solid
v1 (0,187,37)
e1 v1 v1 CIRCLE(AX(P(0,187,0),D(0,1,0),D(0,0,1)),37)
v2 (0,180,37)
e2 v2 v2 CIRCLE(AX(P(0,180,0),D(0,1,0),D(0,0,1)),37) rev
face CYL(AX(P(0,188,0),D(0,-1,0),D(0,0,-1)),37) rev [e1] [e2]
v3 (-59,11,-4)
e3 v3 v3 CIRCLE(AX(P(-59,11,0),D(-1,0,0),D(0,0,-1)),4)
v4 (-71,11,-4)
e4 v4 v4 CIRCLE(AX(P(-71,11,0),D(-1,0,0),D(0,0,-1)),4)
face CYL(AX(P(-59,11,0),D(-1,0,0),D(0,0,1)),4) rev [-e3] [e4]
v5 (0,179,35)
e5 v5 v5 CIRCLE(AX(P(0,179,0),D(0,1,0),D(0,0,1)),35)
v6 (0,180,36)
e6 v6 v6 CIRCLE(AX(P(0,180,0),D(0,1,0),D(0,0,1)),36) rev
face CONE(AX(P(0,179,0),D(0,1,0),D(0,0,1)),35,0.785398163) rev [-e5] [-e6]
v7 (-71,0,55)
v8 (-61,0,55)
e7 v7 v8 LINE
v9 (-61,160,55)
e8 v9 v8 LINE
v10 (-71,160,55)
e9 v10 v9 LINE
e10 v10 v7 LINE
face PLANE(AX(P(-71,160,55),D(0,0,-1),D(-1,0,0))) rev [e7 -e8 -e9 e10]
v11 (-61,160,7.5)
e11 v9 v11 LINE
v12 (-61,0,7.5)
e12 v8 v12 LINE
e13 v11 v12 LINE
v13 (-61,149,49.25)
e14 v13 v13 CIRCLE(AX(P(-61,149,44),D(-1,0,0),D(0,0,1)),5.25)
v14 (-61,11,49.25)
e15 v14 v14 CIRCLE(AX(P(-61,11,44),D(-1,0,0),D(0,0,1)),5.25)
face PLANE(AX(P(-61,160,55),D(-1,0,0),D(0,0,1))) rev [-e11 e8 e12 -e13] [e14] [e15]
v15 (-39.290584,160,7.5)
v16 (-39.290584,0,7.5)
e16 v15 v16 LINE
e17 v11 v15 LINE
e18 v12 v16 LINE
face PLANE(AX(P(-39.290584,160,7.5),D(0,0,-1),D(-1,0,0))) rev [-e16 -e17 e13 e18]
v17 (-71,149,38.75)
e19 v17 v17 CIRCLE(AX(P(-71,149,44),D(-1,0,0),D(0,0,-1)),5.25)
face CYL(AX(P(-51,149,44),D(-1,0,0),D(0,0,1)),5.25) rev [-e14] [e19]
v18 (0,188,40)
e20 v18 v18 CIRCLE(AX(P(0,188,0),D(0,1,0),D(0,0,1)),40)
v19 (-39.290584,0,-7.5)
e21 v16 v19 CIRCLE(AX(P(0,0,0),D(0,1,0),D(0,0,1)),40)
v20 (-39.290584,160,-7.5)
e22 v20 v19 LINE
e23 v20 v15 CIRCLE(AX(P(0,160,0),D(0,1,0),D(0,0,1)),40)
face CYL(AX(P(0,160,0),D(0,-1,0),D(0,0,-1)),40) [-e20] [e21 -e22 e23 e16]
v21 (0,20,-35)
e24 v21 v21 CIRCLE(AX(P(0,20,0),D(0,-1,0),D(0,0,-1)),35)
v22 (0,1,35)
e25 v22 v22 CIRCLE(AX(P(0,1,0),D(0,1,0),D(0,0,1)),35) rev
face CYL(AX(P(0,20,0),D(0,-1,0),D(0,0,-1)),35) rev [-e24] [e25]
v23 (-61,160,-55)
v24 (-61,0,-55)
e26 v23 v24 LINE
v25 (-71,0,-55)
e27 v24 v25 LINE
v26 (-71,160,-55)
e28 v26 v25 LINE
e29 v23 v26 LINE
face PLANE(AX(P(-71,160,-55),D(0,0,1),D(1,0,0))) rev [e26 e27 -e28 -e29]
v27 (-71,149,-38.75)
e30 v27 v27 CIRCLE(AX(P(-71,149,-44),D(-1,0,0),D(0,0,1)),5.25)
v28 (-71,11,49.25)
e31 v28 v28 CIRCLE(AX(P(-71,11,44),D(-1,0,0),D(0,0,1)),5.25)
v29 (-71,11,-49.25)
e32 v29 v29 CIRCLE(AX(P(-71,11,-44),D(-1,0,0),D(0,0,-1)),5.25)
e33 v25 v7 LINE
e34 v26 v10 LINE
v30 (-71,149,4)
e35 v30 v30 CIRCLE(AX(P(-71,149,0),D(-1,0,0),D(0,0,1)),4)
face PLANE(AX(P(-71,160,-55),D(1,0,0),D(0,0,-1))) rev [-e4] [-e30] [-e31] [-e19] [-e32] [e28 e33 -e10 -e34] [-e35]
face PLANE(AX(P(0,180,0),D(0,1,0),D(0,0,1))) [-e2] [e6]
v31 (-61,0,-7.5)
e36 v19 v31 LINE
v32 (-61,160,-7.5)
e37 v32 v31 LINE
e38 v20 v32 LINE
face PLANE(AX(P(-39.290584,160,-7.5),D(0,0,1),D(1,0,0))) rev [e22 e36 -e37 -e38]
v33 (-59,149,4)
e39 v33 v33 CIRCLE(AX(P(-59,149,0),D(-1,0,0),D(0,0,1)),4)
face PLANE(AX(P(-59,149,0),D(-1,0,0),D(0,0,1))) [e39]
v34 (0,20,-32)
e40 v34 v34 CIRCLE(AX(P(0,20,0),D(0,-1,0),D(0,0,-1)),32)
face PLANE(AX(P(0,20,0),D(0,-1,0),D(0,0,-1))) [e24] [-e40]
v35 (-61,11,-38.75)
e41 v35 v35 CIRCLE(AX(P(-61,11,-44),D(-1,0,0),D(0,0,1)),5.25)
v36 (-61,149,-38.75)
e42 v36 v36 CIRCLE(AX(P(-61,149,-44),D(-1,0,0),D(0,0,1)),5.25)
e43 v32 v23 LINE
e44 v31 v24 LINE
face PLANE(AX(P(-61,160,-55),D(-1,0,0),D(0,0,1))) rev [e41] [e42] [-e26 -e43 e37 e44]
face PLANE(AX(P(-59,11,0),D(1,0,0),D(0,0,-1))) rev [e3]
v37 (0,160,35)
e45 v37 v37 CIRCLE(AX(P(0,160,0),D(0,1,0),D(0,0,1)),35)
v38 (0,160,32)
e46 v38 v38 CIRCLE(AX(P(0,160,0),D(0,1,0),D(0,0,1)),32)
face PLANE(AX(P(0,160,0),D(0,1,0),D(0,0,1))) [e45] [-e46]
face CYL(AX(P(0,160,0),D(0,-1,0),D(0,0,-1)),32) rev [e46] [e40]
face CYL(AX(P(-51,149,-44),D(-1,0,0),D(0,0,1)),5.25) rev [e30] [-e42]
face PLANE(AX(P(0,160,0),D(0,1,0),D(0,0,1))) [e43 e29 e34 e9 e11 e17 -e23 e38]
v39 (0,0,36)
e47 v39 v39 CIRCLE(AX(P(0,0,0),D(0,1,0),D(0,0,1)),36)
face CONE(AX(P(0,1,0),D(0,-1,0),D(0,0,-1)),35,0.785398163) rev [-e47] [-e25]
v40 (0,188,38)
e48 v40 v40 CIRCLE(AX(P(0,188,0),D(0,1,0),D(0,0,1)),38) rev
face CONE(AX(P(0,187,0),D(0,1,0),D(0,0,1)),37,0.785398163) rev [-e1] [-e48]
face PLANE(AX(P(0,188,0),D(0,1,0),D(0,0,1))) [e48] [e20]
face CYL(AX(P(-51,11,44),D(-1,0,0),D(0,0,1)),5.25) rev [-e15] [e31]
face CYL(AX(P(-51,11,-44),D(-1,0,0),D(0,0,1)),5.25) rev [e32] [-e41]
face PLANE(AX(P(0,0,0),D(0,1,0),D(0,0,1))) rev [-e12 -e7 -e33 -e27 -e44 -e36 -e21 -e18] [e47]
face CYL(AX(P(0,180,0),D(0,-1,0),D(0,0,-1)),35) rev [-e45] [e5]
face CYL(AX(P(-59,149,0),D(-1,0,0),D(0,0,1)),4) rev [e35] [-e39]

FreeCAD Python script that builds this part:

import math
import FreeCAD as App
import Part
import Sketcher
Q = App.Units.Quantity


def edges_at(feature, points):
    """Names of the edges that pass closest to the given points."""
    edges = feature.Shape.Edges
    near = lambda p: min(range(len(edges)), key=lambda i: edges[i].distToShape(Part.Vertex(*p))[0])
    return sorted({f"Edge{near(p) + 1}" for p in points})

doc = App.newDocument("Part")
body = doc.addObject("PartDesign::Body", "Body")

# Sketch on XZ plane
sketch1 = body.newObject("Sketcher::SketchObject", "Sketch")
sketch1.AttachmentSupport = (doc.getObject("XZ_Plane"), [""])
sketch1.MapMode = "FlatFace"
sketch1.addGeometry([
    Part.LineSegment(App.Vector(-39, -8, 0), App.Vector(-61, -8, 0)),  # 0
    Part.LineSegment(App.Vector(-61, -8, 0), App.Vector(-61, -55, 0)),  # 1
    Part.LineSegment(App.Vector(-61, -55, 0), App.Vector(-71, -55, 0)),  # 2
    Part.LineSegment(App.Vector(-71, -55, 0), App.Vector(-71, 55, 0)),  # 3
    Part.LineSegment(App.Vector(-71, 55, 0), App.Vector(-61, 55, 0)),  # 4
    Part.LineSegment(App.Vector(-61, 55, 0), App.Vector(-61, 8, 0)),  # 5
    Part.LineSegment(App.Vector(-61, 8, 0), App.Vector(-39, 8, 0)),  # 6
    Part.ArcOfCircle(Part.Circle(App.Vector(0, 0, 0), App.Vector(0, 0, 1), 40), math.radians(-169), math.radians(169)),  # 7
    Part.Circle(App.Vector(0, 0, 0), App.Vector(0, 0, 1), 32),  # 8
], False)
sketch1.addConstraint([
    Sketcher.Constraint("Coincident", 0, 2, 1, 1),
    Sketcher.Constraint("Coincident", 1, 2, 2, 1),
    Sketcher.Constraint("Coincident", 2, 2, 3, 1),
    Sketcher.Constraint("Coincident", 3, 2, 4, 1),
    Sketcher.Constraint("Coincident", 4, 2, 5, 1),
    Sketcher.Constraint("Coincident", 5, 2, 6, 1),
    Sketcher.Constraint("Coincident", 6, 2, 7, 2),
    Sketcher.Constraint("Coincident", 7, 1, 0, 1),
    Sketcher.Constraint("Horizontal", 0),
    Sketcher.Constraint("Vertical", 1),
    Sketcher.Constraint("Horizontal", 2),
    Sketcher.Constraint("Vertical", 3),
    Sketcher.Constraint("Horizontal", 4),
    Sketcher.Constraint("Vertical", 5),
    Sketcher.Constraint("Horizontal", 6),
    Sketcher.Constraint("Coincident", 7, 3, -1, 1),
    Sketcher.Constraint("Coincident", 8, 3, -1, 1),
    Sketcher.Constraint("Symmetric", 1, 2, 4, 2, -1),
    Sketcher.Constraint("Vertical", 6, 2, 7, 1),
    Sketcher.Constraint("Diameter", 8, Q("64 mm")),
    Sketcher.Constraint("Radius", 7, Q("40 mm")),
    Sketcher.Constraint("DistanceX", 2, 2, 2, 1, Q("10 mm")),
    Sketcher.Constraint("DistanceY", 3, 1, 3, 2, Q("110 mm")),
    Sketcher.Constraint("DistanceY", 1, 2, 1, 1, Q("47.5 mm")),
    Sketcher.Constraint("DistanceX", 0, 2, -1, 1, Q("61 mm")),
])
pad1 = body.newObject("PartDesign::Pad", "Pad")
pad1.Profile = sketch1
pad1.Length = 160
pad1.Reversed = True

# Sketch on XZ plane
sketch2 = body.newObject("Sketcher::SketchObject", "Sketch001")
sketch2.AttachmentSupport = (doc.getObject("XZ_Plane"), [""])
sketch2.MapMode = "FlatFace"
sketch2.AttachmentOffset = App.Placement(App.Vector(0, 0, -160), App.Rotation())
sketch2.addGeometry([
    Part.Circle(App.Vector(0, 0, 0), App.Vector(0, 0, 1), 40),
    Part.Circle(App.Vector(0, 0, 0), App.Vector(0, 0, 1), 35),
], False)
sketch2.addConstraint([
    Sketcher.Constraint("Coincident", 0, 3, -1, 1),
    Sketcher.Constraint("Coincident", 1, 3, -1, 1),
    Sketcher.Constraint("Diameter", 0, Q("80 mm")),
    Sketcher.Constraint("Diameter", 1, Q("70 mm")),
])
pad2 = body.newObject("PartDesign::Pad", "Pad001")
pad2.Profile = sketch2
pad2.Length = 20
pad2.Reversed = True

# Sketch on YZ plane
sketch3 = body.newObject("Sketcher::SketchObject", "Sketch002")
sketch3.AttachmentSupport = (doc.getObject("YZ_Plane"), [""])
sketch3.MapMode = "FlatFace"
sketch3.AttachmentOffset = App.Placement(App.Vector(0, 0, -71), App.Rotation())
sketch3.addGeometry([
    Part.Circle(App.Vector(149, -44, 0), App.Vector(0, 0, 1), 5),
    Part.Circle(App.Vector(149, 44, 0), App.Vector(0, 0, 1), 5),
    Part.Circle(App.Vector(11, 44, 0), App.Vector(0, 0, 1), 5),
    Part.Circle(App.Vector(11, -44, 0), App.Vector(0, 0, 1), 5),
], False)
sketch3.addConstraint([
    Sketcher.Constraint("Equal", 0, 1),
    Sketcher.Constraint("Equal", 1, 2),
    Sketcher.Constraint("Equal", 2, 3),
    Sketcher.Constraint("Symmetric", 0, 3, 1, 3, -1),
    Sketcher.Constraint("Symmetric", 2, 3, 3, 3, -1),
    Sketcher.Constraint("Horizontal", 1, 3, 2, 3),
    Sketcher.Constraint("Diameter", 0, Q("10.5 mm")),
    Sketcher.Constraint("DistanceX", -1, 1, 0, 3, Q("149 mm")),
    Sketcher.Constraint("DistanceY", 0, 3, -1, 1, Q("44 mm")),
    Sketcher.Constraint("DistanceX", -1, 1, 2, 3, Q("11 mm")),
])
pocket1 = body.newObject("PartDesign::Pocket", "Pocket")
pocket1.Profile = sketch3
pocket1.Length = 20
pocket1.Reversed = True

# Sketch on YZ plane
sketch4 = body.newObject("Sketcher::SketchObject", "Sketch003")
sketch4.AttachmentSupport = (doc.getObject("YZ_Plane"), [""])
sketch4.MapMode = "FlatFace"
sketch4.AttachmentOffset = App.Placement(App.Vector(0, 0, -71), App.Rotation())
sketch4.addGeometry([
    Part.Circle(App.Vector(149, 0, 0), App.Vector(0, 0, 1), 4),
    Part.Circle(App.Vector(11, 0, 0), App.Vector(0, 0, 1), 4),
], False)
sketch4.addConstraint([
    Sketcher.Constraint("Equal", 0, 1),
    Sketcher.Constraint("PointOnObject", 0, 3, -1),
    Sketcher.Constraint("PointOnObject", 1, 3, -1),
    Sketcher.Constraint("Diameter", 0, Q("8 mm")),
    Sketcher.Constraint("DistanceX", -1, 1, 0, 3, Q("149 mm")),
    Sketcher.Constraint("DistanceX", -1, 1, 1, 3, Q("11 mm")),
])
pocket2 = body.newObject("PartDesign::Pocket", "Pocket001")
pocket2.Profile = sketch4
pocket2.Length = 12
pocket2.Reversed = True

# Sketch on XZ plane
sketch5 = body.newObject("Sketcher::SketchObject", "Sketch004")
sketch5.AttachmentSupport = (doc.getObject("XZ_Plane"), [""])
sketch5.MapMode = "FlatFace"
sketch5.AttachmentOffset = App.Placement(App.Vector(0, 0, -180), App.Rotation())
sketch5.addGeometry([
    Part.Circle(App.Vector(0, 0, 0), App.Vector(0, 0, 1), 40),
    Part.Circle(App.Vector(0, 0, 0), App.Vector(0, 0, 1), 37),
], False)
sketch5.addConstraint([
    Sketcher.Constraint("Coincident", 0, 3, -1, 1),
    Sketcher.Constraint("Coincident", 1, 3, -1, 1),
    Sketcher.Constraint("Diameter", 0, Q("80 mm")),
    Sketcher.Constraint("Diameter", 1, Q("74 mm")),
])
pad3 = body.newObject("PartDesign::Pad", "Pad002")
pad3.Profile = sketch5
pad3.Length = 8
pad3.Reversed = True

# Sketch on XZ plane
sketch6 = body.newObject("Sketcher::SketchObject", "Sketch005")
sketch6.AttachmentSupport = (doc.getObject("XZ_Plane"), [""])
sketch6.MapMode = "FlatFace"
sketch6.addGeometry(Part.Circle(App.Vector(0, 0, 0), App.Vector(0, 0, 1), 35), False)
sketch6.addConstraint([
    Sketcher.Constraint("Coincident", 0, 3, -1, 1),
    Sketcher.Constraint("Diameter", 0, Q("70 mm")),
])
pocket3 = body.newObject("PartDesign::Pocket", "Pocket002")
pocket3.Profile = sketch6
pocket3.Length = 20
doc.recompute()

chamfer = body.newObject("PartDesign::Chamfer", "Chamfer")
chamfer.Base = (pocket3, edges_at(pocket3, [(0, 180, -35), (0, 188, -37), (0, 0, -35)]))
chamfer.Size = 1

doc.recompute()
